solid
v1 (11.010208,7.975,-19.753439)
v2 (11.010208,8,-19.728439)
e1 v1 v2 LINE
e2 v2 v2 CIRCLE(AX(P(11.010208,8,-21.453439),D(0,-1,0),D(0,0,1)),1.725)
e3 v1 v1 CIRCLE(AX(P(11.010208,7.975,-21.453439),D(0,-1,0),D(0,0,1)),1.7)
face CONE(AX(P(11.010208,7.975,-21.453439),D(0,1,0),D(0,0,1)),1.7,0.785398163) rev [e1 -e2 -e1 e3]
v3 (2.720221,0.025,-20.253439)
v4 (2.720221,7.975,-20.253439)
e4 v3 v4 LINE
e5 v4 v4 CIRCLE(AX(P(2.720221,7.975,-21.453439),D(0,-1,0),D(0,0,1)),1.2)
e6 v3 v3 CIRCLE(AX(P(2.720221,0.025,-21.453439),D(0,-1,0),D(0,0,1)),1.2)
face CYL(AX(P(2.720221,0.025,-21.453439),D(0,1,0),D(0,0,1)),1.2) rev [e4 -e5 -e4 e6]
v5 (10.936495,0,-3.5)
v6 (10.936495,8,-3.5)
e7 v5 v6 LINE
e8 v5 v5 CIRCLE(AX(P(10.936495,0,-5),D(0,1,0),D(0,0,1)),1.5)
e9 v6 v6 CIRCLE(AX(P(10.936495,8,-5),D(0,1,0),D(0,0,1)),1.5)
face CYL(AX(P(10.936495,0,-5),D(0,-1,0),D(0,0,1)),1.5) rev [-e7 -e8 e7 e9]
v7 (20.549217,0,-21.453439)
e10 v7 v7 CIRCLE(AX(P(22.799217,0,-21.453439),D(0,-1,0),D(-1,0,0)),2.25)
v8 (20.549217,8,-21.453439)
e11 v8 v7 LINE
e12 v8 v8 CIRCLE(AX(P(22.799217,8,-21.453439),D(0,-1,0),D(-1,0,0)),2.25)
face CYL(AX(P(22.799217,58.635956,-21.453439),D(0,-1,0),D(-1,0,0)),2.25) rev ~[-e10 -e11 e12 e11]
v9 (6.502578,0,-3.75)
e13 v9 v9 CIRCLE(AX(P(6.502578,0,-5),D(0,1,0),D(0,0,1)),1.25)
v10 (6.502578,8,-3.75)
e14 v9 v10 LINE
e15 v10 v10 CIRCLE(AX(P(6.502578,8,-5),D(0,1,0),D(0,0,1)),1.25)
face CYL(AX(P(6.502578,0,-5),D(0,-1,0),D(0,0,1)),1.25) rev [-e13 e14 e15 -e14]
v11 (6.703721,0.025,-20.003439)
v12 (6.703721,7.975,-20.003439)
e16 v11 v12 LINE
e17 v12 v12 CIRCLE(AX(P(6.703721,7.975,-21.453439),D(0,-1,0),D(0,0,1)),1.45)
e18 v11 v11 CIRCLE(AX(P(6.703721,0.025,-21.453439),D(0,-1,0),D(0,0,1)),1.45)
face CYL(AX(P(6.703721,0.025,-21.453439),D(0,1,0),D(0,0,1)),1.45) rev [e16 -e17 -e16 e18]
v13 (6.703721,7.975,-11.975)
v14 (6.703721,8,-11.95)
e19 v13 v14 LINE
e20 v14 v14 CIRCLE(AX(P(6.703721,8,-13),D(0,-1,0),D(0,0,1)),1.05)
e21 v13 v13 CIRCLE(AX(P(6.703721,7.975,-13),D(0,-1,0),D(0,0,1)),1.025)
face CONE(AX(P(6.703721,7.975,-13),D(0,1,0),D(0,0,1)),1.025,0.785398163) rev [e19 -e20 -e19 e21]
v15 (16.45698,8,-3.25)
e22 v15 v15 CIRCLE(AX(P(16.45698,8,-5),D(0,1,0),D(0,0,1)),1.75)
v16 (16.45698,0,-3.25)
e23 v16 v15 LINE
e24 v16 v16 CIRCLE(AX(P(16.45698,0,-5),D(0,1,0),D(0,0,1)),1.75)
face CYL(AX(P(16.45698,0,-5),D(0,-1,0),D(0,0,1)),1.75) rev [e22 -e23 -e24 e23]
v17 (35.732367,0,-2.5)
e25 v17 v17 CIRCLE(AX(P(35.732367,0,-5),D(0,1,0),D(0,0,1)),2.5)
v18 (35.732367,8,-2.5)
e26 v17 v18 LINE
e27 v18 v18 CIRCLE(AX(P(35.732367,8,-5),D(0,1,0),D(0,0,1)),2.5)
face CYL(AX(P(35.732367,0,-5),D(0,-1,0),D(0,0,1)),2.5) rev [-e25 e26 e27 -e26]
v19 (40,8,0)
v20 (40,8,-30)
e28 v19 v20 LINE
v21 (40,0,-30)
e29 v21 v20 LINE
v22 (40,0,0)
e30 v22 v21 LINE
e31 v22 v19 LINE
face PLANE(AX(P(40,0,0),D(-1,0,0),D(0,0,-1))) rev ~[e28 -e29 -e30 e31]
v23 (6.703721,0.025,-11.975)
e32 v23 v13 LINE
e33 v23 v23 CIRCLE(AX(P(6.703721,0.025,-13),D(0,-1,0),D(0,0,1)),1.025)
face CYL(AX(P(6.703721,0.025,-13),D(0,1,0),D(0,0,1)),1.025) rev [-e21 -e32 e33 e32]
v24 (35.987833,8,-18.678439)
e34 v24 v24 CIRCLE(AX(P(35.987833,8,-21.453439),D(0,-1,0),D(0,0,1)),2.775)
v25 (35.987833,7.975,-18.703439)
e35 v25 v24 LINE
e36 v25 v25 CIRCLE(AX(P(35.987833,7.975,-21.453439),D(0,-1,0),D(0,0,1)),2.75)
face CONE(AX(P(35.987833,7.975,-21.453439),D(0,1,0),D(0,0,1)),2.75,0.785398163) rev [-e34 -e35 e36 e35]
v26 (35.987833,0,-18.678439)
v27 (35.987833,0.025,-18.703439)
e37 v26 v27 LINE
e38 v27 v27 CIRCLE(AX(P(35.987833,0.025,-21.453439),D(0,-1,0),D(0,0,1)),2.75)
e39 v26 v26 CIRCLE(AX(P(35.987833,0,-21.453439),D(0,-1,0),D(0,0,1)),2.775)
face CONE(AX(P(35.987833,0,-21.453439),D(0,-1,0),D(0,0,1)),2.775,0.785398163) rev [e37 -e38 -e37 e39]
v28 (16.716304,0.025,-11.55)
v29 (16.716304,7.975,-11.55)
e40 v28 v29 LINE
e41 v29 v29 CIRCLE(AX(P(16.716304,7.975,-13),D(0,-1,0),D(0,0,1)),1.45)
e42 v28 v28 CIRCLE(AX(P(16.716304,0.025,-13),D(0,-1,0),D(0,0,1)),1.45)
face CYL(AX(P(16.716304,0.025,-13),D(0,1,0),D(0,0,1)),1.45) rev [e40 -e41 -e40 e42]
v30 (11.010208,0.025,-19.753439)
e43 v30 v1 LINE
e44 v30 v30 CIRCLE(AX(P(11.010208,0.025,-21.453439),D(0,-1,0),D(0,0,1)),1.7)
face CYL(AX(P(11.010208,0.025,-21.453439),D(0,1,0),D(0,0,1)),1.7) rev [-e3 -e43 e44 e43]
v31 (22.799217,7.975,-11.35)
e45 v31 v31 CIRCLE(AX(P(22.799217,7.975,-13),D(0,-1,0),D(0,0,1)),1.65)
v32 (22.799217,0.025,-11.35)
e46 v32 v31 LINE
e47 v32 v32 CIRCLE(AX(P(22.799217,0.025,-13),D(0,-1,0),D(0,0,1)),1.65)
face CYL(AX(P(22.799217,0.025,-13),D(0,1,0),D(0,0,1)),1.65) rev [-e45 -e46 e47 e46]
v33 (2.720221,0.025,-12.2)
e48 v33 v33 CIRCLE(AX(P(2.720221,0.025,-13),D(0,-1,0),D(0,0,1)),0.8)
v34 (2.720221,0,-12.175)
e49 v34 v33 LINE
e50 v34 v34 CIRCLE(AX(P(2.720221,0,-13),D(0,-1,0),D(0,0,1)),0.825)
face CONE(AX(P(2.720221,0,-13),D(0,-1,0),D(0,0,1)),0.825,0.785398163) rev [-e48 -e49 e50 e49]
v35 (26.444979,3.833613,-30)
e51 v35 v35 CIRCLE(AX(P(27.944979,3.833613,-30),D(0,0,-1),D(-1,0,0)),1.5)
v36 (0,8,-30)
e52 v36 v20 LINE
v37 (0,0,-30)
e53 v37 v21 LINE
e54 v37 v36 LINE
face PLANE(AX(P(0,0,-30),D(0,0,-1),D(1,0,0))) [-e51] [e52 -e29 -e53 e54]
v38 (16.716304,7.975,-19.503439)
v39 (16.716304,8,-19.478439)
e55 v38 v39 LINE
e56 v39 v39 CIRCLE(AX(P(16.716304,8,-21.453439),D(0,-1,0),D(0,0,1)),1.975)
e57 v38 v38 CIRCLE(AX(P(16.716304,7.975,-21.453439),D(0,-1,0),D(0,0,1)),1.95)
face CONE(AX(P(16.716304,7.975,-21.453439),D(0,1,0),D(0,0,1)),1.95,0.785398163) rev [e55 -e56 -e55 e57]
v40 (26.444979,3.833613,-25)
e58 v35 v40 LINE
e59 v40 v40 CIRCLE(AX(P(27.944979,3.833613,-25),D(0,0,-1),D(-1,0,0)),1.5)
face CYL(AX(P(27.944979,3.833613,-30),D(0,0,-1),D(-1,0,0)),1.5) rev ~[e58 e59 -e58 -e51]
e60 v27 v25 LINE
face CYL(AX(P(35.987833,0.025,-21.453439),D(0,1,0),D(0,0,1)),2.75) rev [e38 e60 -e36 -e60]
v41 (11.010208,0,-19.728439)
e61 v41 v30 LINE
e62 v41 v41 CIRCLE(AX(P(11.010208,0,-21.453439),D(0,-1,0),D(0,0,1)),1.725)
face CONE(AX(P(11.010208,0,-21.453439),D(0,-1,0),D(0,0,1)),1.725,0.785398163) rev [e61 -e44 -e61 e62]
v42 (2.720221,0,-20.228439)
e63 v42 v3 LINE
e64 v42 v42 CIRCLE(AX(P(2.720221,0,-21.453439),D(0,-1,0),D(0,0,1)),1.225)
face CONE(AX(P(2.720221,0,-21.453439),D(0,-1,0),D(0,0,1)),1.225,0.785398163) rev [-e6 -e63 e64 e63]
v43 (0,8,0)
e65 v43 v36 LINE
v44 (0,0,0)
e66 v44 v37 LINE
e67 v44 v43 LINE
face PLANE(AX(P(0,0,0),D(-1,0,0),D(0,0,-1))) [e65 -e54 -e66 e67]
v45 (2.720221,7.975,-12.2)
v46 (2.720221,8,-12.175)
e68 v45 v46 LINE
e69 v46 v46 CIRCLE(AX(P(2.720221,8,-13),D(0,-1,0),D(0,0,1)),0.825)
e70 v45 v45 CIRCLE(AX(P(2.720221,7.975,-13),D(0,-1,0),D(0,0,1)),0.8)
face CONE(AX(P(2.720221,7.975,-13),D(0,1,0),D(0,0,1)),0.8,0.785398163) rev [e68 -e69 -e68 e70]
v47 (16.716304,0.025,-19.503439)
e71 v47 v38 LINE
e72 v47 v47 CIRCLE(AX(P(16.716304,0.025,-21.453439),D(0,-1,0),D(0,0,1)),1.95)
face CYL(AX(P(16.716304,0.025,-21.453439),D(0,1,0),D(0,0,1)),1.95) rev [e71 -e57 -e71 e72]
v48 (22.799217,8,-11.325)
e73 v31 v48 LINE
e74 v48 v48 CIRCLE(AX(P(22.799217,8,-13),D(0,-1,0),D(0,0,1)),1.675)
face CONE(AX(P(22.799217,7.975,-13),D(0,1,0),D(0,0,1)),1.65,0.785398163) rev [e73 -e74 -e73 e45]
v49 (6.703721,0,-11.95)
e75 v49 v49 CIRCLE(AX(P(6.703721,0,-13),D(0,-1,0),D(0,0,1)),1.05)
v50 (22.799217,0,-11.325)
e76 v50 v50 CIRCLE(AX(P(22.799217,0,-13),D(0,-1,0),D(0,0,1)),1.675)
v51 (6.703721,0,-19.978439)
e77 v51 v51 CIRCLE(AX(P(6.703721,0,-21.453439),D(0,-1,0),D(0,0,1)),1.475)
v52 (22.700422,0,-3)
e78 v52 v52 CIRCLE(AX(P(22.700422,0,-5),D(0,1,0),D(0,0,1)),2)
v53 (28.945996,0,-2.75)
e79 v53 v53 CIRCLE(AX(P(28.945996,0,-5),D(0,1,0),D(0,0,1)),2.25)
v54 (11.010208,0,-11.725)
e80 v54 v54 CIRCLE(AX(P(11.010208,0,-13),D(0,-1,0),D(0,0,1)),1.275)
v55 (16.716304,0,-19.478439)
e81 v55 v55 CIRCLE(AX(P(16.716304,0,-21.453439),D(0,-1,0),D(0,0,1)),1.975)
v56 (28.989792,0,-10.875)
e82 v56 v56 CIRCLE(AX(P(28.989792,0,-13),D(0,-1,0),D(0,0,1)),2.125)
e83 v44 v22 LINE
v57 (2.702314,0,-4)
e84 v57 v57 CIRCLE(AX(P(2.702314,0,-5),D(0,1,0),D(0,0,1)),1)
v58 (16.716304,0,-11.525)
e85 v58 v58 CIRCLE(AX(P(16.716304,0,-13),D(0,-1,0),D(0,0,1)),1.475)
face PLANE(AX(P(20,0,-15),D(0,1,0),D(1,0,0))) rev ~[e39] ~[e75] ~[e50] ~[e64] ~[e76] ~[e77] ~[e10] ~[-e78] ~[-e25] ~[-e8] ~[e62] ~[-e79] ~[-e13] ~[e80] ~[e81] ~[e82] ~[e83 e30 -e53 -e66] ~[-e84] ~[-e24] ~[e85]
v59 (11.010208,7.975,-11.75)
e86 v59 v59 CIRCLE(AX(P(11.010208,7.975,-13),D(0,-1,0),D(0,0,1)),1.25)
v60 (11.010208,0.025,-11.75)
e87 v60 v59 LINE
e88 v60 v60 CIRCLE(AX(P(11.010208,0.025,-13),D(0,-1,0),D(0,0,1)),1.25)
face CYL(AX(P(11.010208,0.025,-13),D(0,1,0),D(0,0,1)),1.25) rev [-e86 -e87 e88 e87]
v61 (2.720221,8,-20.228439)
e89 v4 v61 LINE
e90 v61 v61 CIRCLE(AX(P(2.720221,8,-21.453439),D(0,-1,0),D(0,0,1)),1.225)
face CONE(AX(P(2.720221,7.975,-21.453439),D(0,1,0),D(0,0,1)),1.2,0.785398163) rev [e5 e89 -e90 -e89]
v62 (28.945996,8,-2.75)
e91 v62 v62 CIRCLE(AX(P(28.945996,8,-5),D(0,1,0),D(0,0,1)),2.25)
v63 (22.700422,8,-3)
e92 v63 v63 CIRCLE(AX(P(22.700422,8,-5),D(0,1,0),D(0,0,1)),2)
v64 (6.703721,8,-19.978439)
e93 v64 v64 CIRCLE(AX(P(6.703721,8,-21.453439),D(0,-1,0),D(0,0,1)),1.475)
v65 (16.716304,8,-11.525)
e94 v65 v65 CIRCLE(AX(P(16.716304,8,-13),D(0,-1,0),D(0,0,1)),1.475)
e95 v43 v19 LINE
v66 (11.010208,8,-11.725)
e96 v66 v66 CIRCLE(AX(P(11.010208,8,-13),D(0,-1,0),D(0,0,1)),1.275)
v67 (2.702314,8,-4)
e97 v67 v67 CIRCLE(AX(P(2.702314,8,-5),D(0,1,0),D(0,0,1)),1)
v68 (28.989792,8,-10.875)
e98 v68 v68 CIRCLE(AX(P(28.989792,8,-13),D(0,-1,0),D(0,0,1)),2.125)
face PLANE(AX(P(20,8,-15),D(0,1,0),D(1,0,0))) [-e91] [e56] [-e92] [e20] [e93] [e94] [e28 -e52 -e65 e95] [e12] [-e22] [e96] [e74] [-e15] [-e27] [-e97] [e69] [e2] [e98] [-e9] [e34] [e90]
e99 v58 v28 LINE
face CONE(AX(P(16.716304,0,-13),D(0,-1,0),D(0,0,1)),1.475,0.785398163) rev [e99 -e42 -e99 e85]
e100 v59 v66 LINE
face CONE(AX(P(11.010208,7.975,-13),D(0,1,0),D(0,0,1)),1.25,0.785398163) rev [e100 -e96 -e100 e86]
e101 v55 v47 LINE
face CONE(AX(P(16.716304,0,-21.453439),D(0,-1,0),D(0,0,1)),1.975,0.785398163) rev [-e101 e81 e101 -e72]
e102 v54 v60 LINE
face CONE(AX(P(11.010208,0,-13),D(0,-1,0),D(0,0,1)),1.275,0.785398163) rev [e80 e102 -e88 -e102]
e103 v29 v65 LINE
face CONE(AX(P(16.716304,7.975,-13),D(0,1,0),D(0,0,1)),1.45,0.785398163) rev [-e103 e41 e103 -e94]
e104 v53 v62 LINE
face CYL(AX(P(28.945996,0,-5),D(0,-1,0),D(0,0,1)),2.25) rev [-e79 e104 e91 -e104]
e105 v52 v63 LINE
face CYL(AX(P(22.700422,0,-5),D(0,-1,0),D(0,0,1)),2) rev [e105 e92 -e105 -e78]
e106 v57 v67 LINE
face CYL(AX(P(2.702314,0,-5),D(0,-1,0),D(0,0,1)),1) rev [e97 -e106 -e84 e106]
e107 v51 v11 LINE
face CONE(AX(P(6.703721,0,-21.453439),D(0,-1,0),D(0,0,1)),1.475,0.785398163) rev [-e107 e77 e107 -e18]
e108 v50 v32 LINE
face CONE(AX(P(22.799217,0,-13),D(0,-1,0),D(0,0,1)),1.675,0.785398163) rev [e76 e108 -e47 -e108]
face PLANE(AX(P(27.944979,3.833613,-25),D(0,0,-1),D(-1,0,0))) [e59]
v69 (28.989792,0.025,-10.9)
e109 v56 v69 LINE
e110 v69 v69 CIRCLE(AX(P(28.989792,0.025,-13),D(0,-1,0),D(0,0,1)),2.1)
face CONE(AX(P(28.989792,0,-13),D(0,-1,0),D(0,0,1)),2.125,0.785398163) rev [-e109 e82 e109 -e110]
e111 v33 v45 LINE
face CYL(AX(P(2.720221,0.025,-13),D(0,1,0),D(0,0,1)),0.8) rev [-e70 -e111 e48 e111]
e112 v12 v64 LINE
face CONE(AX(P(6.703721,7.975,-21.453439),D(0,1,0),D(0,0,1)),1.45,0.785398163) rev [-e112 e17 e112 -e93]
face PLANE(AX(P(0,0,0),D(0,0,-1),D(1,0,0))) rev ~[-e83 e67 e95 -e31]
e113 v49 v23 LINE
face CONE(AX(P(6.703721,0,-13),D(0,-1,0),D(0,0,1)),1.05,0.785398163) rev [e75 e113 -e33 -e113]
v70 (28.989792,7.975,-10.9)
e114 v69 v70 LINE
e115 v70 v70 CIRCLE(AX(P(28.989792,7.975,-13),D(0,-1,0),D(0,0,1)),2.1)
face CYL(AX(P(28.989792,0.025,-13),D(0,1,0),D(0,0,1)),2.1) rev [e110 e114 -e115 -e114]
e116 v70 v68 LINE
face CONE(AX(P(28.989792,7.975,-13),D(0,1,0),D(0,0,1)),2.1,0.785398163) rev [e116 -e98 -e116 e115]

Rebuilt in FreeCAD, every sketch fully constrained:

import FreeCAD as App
import Part
import Sketcher

V = App.Vector

doc = App.newDocument("Part")
body = doc.addObject("PartDesign::Body", "Body")

# Sketch on XZ plane
sketch1 = doc.addObject("Sketcher::SketchObject", "Sketch")
body.addObject(sketch1)
sketch1.AttachmentSupport = (doc.XZ_Plane, [""])
sketch1.MapMode = "FlatFace"
sketch1.addGeometry([
    Part.LineSegment(V(0, -30, 0), V(0, 0, 0)),  # 0
    Part.LineSegment(V(0, 0, 0), V(40, 0, 0)),  # 1
    Part.LineSegment(V(40, 0, 0), V(40, -30, 0)),  # 2
    Part.LineSegment(V(40, -30, 0), V(0, -30, 0)),  # 3
    Part.Circle(V(2.7, -5, 0), V(0, 0, 1), 1),  # 4
    Part.Circle(V(6.5, -5, 0), V(0, 0, 1), 1.2),  # 5
    Part.Circle(V(10.9, -5, 0), V(0, 0, 1), 1.5),  # 6
    Part.Circle(V(16.5, -5, 0), V(0, 0, 1), 1.8),  # 7
    Part.Circle(V(22.7, -5, 0), V(0, 0, 1), 2),  # 8
    Part.Circle(V(28.9, -5, 0), V(0, 0, 1), 2.2),  # 9
    Part.Circle(V(35.7, -5, 0), V(0, 0, 1), 2.5),  # 10
], False)
sketch1.addConstraint([
    Sketcher.Constraint("Coincident", 0, 2, 1, 1),
    Sketcher.Constraint("Coincident", 1, 2, 2, 1),
    Sketcher.Constraint("Coincident", 2, 2, 3, 1),
    Sketcher.Constraint("Coincident", 3, 2, 0, 1),
    Sketcher.Constraint("Vertical", 0),
    Sketcher.Constraint("Horizontal", 1),
    Sketcher.Constraint("Vertical", 2),
    Sketcher.Constraint("Horizontal", 3),
    Sketcher.Constraint("Coincident", 0, 2, -1, 1),
    Sketcher.Constraint("Horizontal", 4, 3, 5, 3),
    Sketcher.Constraint("Horizontal", 5, 3, 6, 3),
    Sketcher.Constraint("Horizontal", 6, 3, 7, 3),
    Sketcher.Constraint("Horizontal", 7, 3, 8, 3),
    Sketcher.Constraint("Horizontal", 8, 3, 9, 3),
    Sketcher.Constraint("Horizontal", 9, 3, 10, 3),
    Sketcher.Constraint("Diameter", 4, 2.0),
    Sketcher.Constraint("Diameter", 6, 3.0),
    Sketcher.Constraint("Diameter", 8, 4.0),
    Sketcher.Constraint("Diameter", 10, 5.0),
    Sketcher.Constraint("Diameter", 5, 2.5),
    Sketcher.Constraint("Diameter", 7, 3.5),
    Sketcher.Constraint("Diameter", 9, 4.5),
    Sketcher.Constraint("DistanceX", 1, 1, 1, 2, 40.0),
    Sketcher.Constraint("DistanceY", 0, 1, 0, 2, 30.0),
    Sketcher.Constraint("DistanceY", 4, 3, -1, 1, 5.0),
    Sketcher.Constraint("DistanceX", 5, 3, 7, 3, 9.954402),
    Sketcher.Constraint("DistanceX", 6, 3, 9, 3, 18.009501),
    Sketcher.Constraint("DistanceX", -1, 1, 7, 3, 16.45698),
    Sketcher.Constraint("DistanceX", 4, 3, 6, 3, 8.234181),
    Sketcher.Constraint("DistanceX", 4, 3, 8, 3, 19.998108),
    Sketcher.Constraint("DistanceX", 9, 3, 10, 3, 6.786371),
    Sketcher.Constraint("DistanceX", 5, 3, 10, 3, 29.229789),
])
pad1 = doc.addObject("PartDesign::Pad", "Pad")
body.addObject(pad1)
pad1.Profile = sketch1
pad1.Length = 8
pad1.Reversed = True

# Sketch on YZ plane
sketch2 = doc.addObject("Sketcher::SketchObject", "Sketch001")
body.addObject(sketch2)
sketch2.AttachmentSupport = (doc.YZ_Plane, [""])
sketch2.MapMode = "FlatFace"
sketch2.AttachmentOffset = App.Placement(V(0, 0, 2.720221), App.Rotation())
sketch2.addGeometry([
    Part.LineSegment(V(0, -13, 0), V(8, -13, 0)),  # 0
    Part.LineSegment(V(8, -13, 0), V(8, -12.175, 0)),  # 1
    Part.LineSegment(V(8, -12.175, 0), V(7.975, -12.2, 0)),  # 2
    Part.LineSegment(V(7.975, -12.2, 0), V(0.025, -12.2, 0)),  # 3
    Part.LineSegment(V(0.025, -12.2, 0), V(0, -12.175, 0)),  # 4
    Part.LineSegment(V(0, -12.175, 0), V(0, -13, 0)),  # 5
], False)
sketch2.addGeometry(Part.LineSegment(V(8, -13, 0), V(0, -13, 0)), True)  # axis
sketch2.addConstraint([
    Sketcher.Constraint("Coincident", 0, 2, 1, 1),
    Sketcher.Constraint("Coincident", 1, 2, 2, 1),
    Sketcher.Constraint("Coincident", 2, 2, 3, 1),
    Sketcher.Constraint("Coincident", 3, 2, 4, 1),
    Sketcher.Constraint("Coincident", 4, 2, 5, 1),
    Sketcher.Constraint("Coincident", 5, 2, 0, 1),
    Sketcher.Constraint("Horizontal", 0),
    Sketcher.Constraint("Vertical", 1),
    Sketcher.Constraint("Horizontal", 3),
    Sketcher.Constraint("Vertical", 5),
    Sketcher.Constraint("Horizontal", 6),
    Sketcher.Constraint("Coincident", 6, 1, 0, 2),
    Sketcher.Constraint("PointOnObject", 4, 2, -2),
    Sketcher.Constraint("PointOnObject", 6, 2, -2),
    Sketcher.Constraint("Perpendicular", 2, 4),
    Sketcher.Constraint("Horizontal", 1, 2, 4, 2),
    Sketcher.Constraint("Equal", 2, 4),
    Sketcher.Constraint("DistanceX", 0, 1, 0, 2, 8.0),
    Sketcher.Constraint("DistanceY", 0, 2, -1, 1, 13.0),
    Sketcher.Constraint("DistanceX", 3, 2, 3, 1, 7.95),
    Sketcher.Constraint("DistanceY", 2, 2, -1, 1, 12.2),
])
groove = doc.addObject("PartDesign::Groove", "Groove")
body.addObject(groove)
groove.Profile = sketch2
groove.ReferenceAxis = (sketch2, ["Axis0"])
groove.Angle = 360

# Sketch on YZ plane
sketch3 = doc.addObject("Sketcher::SketchObject", "Sketch002")
body.addObject(sketch3)
sketch3.AttachmentSupport = (doc.YZ_Plane, [""])
sketch3.MapMode = "FlatFace"
sketch3.AttachmentOffset = App.Placement(V(0, 0, 6.703721), App.Rotation())
sketch3.addGeometry([
    Part.LineSegment(V(0, -13, 0), V(8, -13, 0)),  # 0
    Part.LineSegment(V(8, -13, 0), V(8, -11.95, 0)),  # 1
    Part.LineSegment(V(8, -11.95, 0), V(7.975, -11.975, 0)),  # 2
    Part.LineSegment(V(7.975, -11.975, 0), V(0.025, -11.975, 0)),  # 3
    Part.LineSegment(V(0.025, -11.975, 0), V(0, -11.95, 0)),  # 4
    Part.LineSegment(V(0, -11.95, 0), V(0, -13, 0)),  # 5
], False)
sketch3.addGeometry(Part.LineSegment(V(8, -13, 0), V(0, -13, 0)), True)  # axis
sketch3.addConstraint([
    Sketcher.Constraint("Coincident", 0, 2, 1, 1),
    Sketcher.Constraint("Coincident", 1, 2, 2, 1),
    Sketcher.Constraint("Coincident", 2, 2, 3, 1),
    Sketcher.Constraint("Coincident", 3, 2, 4, 1),
    Sketcher.Constraint("Coincident", 4, 2, 5, 1),
    Sketcher.Constraint("Coincident", 5, 2, 0, 1),
    Sketcher.Constraint("Horizontal", 0),
    Sketcher.Constraint("Vertical", 1),
    Sketcher.Constraint("Horizontal", 3),
    Sketcher.Constraint("Vertical", 5),
    Sketcher.Constraint("Horizontal", 6),
    Sketcher.Constraint("Coincident", 6, 1, 0, 2),
    Sketcher.Constraint("PointOnObject", 4, 2, -2),
    Sketcher.Constraint("PointOnObject", 6, 2, -2),
    Sketcher.Constraint("Perpendicular", 2, 4),
    Sketcher.Constraint("Horizontal", 1, 2, 4, 2),
    Sketcher.Constraint("Equal", 2, 4),
    Sketcher.Constraint("DistanceX", 0, 1, 0, 2, 8.0),
    Sketcher.Constraint("DistanceY", 0, 2, -1, 1, 13.0),
    Sketcher.Constraint("DistanceX", 3, 2, 3, 1, 7.95),
    Sketcher.Constraint("DistanceY", 1, 1, 1, 2, 1.05),
])
groove2 = doc.addObject("PartDesign::Groove", "Groove001")
body.addObject(groove2)
groove2.Profile = sketch3
groove2.ReferenceAxis = (sketch3, ["Axis0"])
groove2.Angle = 360

# Sketch on YZ plane
sketch4 = doc.addObject("Sketcher::SketchObject", "Sketch003")
body.addObject(sketch4)
sketch4.AttachmentSupport = (doc.YZ_Plane, [""])
sketch4.MapMode = "FlatFace"
sketch4.AttachmentOffset = App.Placement(V(0, 0, 11.010208), App.Rotation())
sketch4.addGeometry([
    Part.LineSegment(V(0, -13, 0), V(8, -13, 0)),  # 0
    Part.LineSegment(V(8, -13, 0), V(8, -11.725, 0)),  # 1
    Part.LineSegment(V(8, -11.725, 0), V(7.975, -11.75, 0)),  # 2
    Part.LineSegment(V(7.975, -11.75, 0), V(0.025, -11.75, 0)),  # 3
    Part.LineSegment(V(0.025, -11.75, 0), V(0, -11.725, 0)),  # 4
    Part.LineSegment(V(0, -11.725, 0), V(0, -13, 0)),  # 5
], False)
sketch4.addGeometry(Part.LineSegment(V(8, -13, 0), V(0, -13, 0)), True)  # axis
sketch4.addConstraint([
    Sketcher.Constraint("Coincident", 0, 2, 1, 1),
    Sketcher.Constraint("Coincident", 1, 2, 2, 1),
    Sketcher.Constraint("Coincident", 2, 2, 3, 1),
    Sketcher.Constraint("Coincident", 3, 2, 4, 1),
    Sketcher.Constraint("Coincident", 4, 2, 5, 1),
    Sketcher.Constraint("Coincident", 5, 2, 0, 1),
    Sketcher.Constraint("Horizontal", 0),
    Sketcher.Constraint("Vertical", 1),
    Sketcher.Constraint("Horizontal", 3),
    Sketcher.Constraint("Vertical", 5),
    Sketcher.Constraint("Horizontal", 6),
    Sketcher.Constraint("Coincident", 6, 1, 0, 2),
    Sketcher.Constraint("PointOnObject", 4, 2, -2),
    Sketcher.Constraint("PointOnObject", 6, 2, -2),
    Sketcher.Constraint("Perpendicular", 2, 4),
    Sketcher.Constraint("Horizontal", 1, 2, 4, 2),
    Sketcher.Constraint("Equal", 2, 4),
    Sketcher.Constraint("DistanceX", 0, 1, 0, 2, 8.0),
    Sketcher.Constraint("DistanceY", 0, 2, -1, 1, 13.0),
    Sketcher.Constraint("DistanceX", 3, 2, 3, 1, 7.95),
    Sketcher.Constraint("DistanceY", 1, 1, 1, 2, 1.275),
])
groove3 = doc.addObject("PartDesign::Groove", "Groove002")
body.addObject(groove3)
groove3.Profile = sketch4
groove3.ReferenceAxis = (sketch4, ["Axis0"])
groove3.Angle = 360

# Sketch on YZ plane
sketch5 = doc.addObject("Sketcher::SketchObject", "Sketch004")
body.addObject(sketch5)
sketch5.AttachmentSupport = (doc.YZ_Plane, [""])
sketch5.MapMode = "FlatFace"
sketch5.AttachmentOffset = App.Placement(V(0, 0, 16.716304), App.Rotation())
sketch5.addGeometry([
    Part.LineSegment(V(0, -13, 0), V(8, -13, 0)),  # 0
    Part.LineSegment(V(8, -13, 0), V(8, -11.525, 0)),  # 1
    Part.LineSegment(V(8, -11.525, 0), V(7.975, -11.55, 0)),  # 2
    Part.LineSegment(V(7.975, -11.55, 0), V(0.025, -11.55, 0)),  # 3
    Part.LineSegment(V(0.025, -11.55, 0), V(0, -11.525, 0)),  # 4
    Part.LineSegment(V(0, -11.525, 0), V(0, -13, 0)),  # 5
], False)
sketch5.addGeometry(Part.LineSegment(V(8, -13, 0), V(0, -13, 0)), True)  # axis
sketch5.addConstraint([
    Sketcher.Constraint("Coincident", 0, 2, 1, 1),
    Sketcher.Constraint("Coincident", 1, 2, 2, 1),
    Sketcher.Constraint("Coincident", 2, 2, 3, 1),
    Sketcher.Constraint("Coincident", 3, 2, 4, 1),
    Sketcher.Constraint("Coincident", 4, 2, 5, 1),
    Sketcher.Constraint("Coincident", 5, 2, 0, 1),
    Sketcher.Constraint("Horizontal", 0),
    Sketcher.Constraint("Vertical", 1),
    Sketcher.Constraint("Horizontal", 3),
    Sketcher.Constraint("Vertical", 5),
    Sketcher.Constraint("Horizontal", 6),
    Sketcher.Constraint("Coincident", 6, 1, 0, 2),
    Sketcher.Constraint("PointOnObject", 4, 2, -2),
    Sketcher.Constraint("PointOnObject", 6, 2, -2),
    Sketcher.Constraint("Perpendicular", 2, 4),
    Sketcher.Constraint("Horizontal", 1, 2, 4, 2),
    Sketcher.Constraint("Equal", 2, 4),
    Sketcher.Constraint("DistanceX", 0, 1, 0, 2, 8.0),
    Sketcher.Constraint("DistanceY", 0, 2, -1, 1, 13.0),
    Sketcher.Constraint("DistanceX", 3, 2, 3, 1, 7.95),
    Sketcher.Constraint("DistanceY", 1, 1, 1, 2, 1.475),
])
groove4 = doc.addObject("PartDesign::Groove", "Groove003")
body.addObject(groove4)
groove4.Profile = sketch5
groove4.ReferenceAxis = (sketch5, ["Axis0"])
groove4.Angle = 360

# Sketch on YZ plane
sketch6 = doc.addObject("Sketcher::SketchObject", "Sketch005")
body.addObject(sketch6)
sketch6.AttachmentSupport = (doc.YZ_Plane, [""])
sketch6.MapMode = "FlatFace"
sketch6.AttachmentOffset = App.Placement(V(0, 0, 22.799217), App.Rotation())
sketch6.addGeometry([
    Part.LineSegment(V(0, -13, 0), V(8, -13, 0)),  # 0
    Part.LineSegment(V(8, -13, 0), V(8, -11.325, 0)),  # 1
    Part.LineSegment(V(8, -11.325, 0), V(7.975, -11.35, 0)),  # 2
    Part.LineSegment(V(7.975, -11.35, 0), V(0.025, -11.35, 0)),  # 3
    Part.LineSegment(V(0.025, -11.35, 0), V(0, -11.325, 0)),  # 4
    Part.LineSegment(V(0, -11.325, 0), V(0, -13, 0)),  # 5
], False)
sketch6.addGeometry(Part.LineSegment(V(8, -13, 0), V(0, -13, 0)), True)  # axis
sketch6.addConstraint([
    Sketcher.Constraint("Coincident", 0, 2, 1, 1),
    Sketcher.Constraint("Coincident", 1, 2, 2, 1),
    Sketcher.Constraint("Coincident", 2, 2, 3, 1),
    Sketcher.Constraint("Coincident", 3, 2, 4, 1),
    Sketcher.Constraint("Coincident", 4, 2, 5, 1),
    Sketcher.Constraint("Coincident", 5, 2, 0, 1),
    Sketcher.Constraint("Horizontal", 0),
    Sketcher.Constraint("Vertical", 1),
    Sketcher.Constraint("Horizontal", 3),
    Sketcher.Constraint("Vertical", 5),
    Sketcher.Constraint("Horizontal", 6),
    Sketcher.Constraint("Coincident", 6, 1, 0, 2),
    Sketcher.Constraint("PointOnObject", 4, 2, -2),
    Sketcher.Constraint("PointOnObject", 6, 2, -2),
    Sketcher.Constraint("Perpendicular", 2, 4),
    Sketcher.Constraint("Horizontal", 1, 2, 4, 2),
    Sketcher.Constraint("Equal", 2, 4),
    Sketcher.Constraint("DistanceX", 0, 1, 0, 2, 8.0),
    Sketcher.Constraint("DistanceY", 0, 2, -1, 1, 13.0),
    Sketcher.Constraint("DistanceX", 3, 2, 3, 1, 7.95),
    Sketcher.Constraint("DistanceY", 1, 1, 1, 2, 1.675),
])
groove5 = doc.addObject("PartDesign::Groove", "Groove004")
body.addObject(groove5)
groove5.Profile = sketch6
groove5.ReferenceAxis = (sketch6, ["Axis0"])
groove5.Angle = 360

# Sketch on YZ plane
sketch7 = doc.addObject("Sketcher::SketchObject", "Sketch006")
body.addObject(sketch7)
sketch7.AttachmentSupport = (doc.YZ_Plane, [""])
sketch7.MapMode = "FlatFace"
sketch7.AttachmentOffset = App.Placement(V(0, 0, 28.989792), App.Rotation())
sketch7.addGeometry([
    Part.LineSegment(V(0, -13, 0), V(8, -13, 0)),  # 0
    Part.LineSegment(V(8, -13, 0), V(8, -10.875, 0)),  # 1
    Part.LineSegment(V(8, -10.875, 0), V(7.975, -10.9, 0)),  # 2
    Part.LineSegment(V(7.975, -10.9, 0), V(0.025, -10.9, 0)),  # 3
    Part.LineSegment(V(0.025, -10.9, 0), V(0, -10.875, 0)),  # 4
    Part.LineSegment(V(0, -10.875, 0), V(0, -13, 0)),  # 5
], False)
sketch7.addGeometry(Part.LineSegment(V(8, -13, 0), V(0, -13, 0)), True)  # axis
sketch7.addConstraint([
    Sketcher.Constraint("Coincident", 0, 2, 1, 1),
    Sketcher.Constraint("Coincident", 1, 2, 2, 1),
    Sketcher.Constraint("Coincident", 2, 2, 3, 1),
    Sketcher.Constraint("Coincident", 3, 2, 4, 1),
    Sketcher.Constraint("Coincident", 4, 2, 5, 1),
    Sketcher.Constraint("Coincident", 5, 2, 0, 1),
    Sketcher.Constraint("Horizontal", 0),
    Sketcher.Constraint("Vertical", 1),
    Sketcher.Constraint("Horizontal", 3),
    Sketcher.Constraint("Vertical", 5),
    Sketcher.Constraint("Horizontal", 6),
    Sketcher.Constraint("Coincident", 6, 1, 0, 2),
    Sketcher.Constraint("PointOnObject", 4, 2, -2),
    Sketcher.Constraint("PointOnObject", 6, 2, -2),
    Sketcher.Constraint("Perpendicular", 2, 4),
    Sketcher.Constraint("Horizontal", 1, 2, 4, 2),
    Sketcher.Constraint("Equal", 2, 4),
    Sketcher.Constraint("DistanceX", 0, 1, 0, 2, 8.0),
    Sketcher.Constraint("DistanceY", 0, 2, -1, 1, 13.0),
    Sketcher.Constraint("DistanceX", 3, 2, 3, 1, 7.95),
    Sketcher.Constraint("DistanceY", 2, 2, -1, 1, 10.9),
])
groove6 = doc.addObject("PartDesign::Groove", "Groove005")
body.addObject(groove6)
groove6.Profile = sketch7
groove6.ReferenceAxis = (sketch7, ["Axis0"])
groove6.Angle = 360

# Sketch on YZ plane
sketch8 = doc.addObject("Sketcher::SketchObject", "Sketch007")
body.addObject(sketch8)
sketch8.AttachmentSupport = (doc.YZ_Plane, [""])
sketch8.MapMode = "FlatFace"
sketch8.AttachmentOffset = App.Placement(V(0, 0, 2.720221), App.Rotation())
sketch8.addGeometry([
    Part.LineSegment(V(0, -21.453, 0), V(8, -21.453, 0)),  # 0
    Part.LineSegment(V(8, -21.453, 0), V(8, -20.228, 0)),  # 1
    Part.LineSegment(V(8, -20.228, 0), V(7.975, -20.253, 0)),  # 2
    Part.LineSegment(V(7.975, -20.253, 0), V(0.025, -20.253, 0)),  # 3
    Part.LineSegment(V(0.025, -20.253, 0), V(0, -20.228, 0)),  # 4
    Part.LineSegment(V(0, -20.228, 0), V(0, -21.453, 0)),  # 5
], False)
sketch8.addGeometry(Part.LineSegment(V(8, -21.453, 0), V(0, -21.453, 0)), True)  # axis
sketch8.addConstraint([
    Sketcher.Constraint("Coincident", 0, 2, 1, 1),
    Sketcher.Constraint("Coincident", 1, 2, 2, 1),
    Sketcher.Constraint("Coincident", 2, 2, 3, 1),
    Sketcher.Constraint("Coincident", 3, 2, 4, 1),
    Sketcher.Constraint("Coincident", 4, 2, 5, 1),
    Sketcher.Constraint("Coincident", 5, 2, 0, 1),
    Sketcher.Constraint("Horizontal", 0),
    Sketcher.Constraint("Vertical", 1),
    Sketcher.Constraint("Horizontal", 3),
    Sketcher.Constraint("Vertical", 5),
    Sketcher.Constraint("Horizontal", 6),
    Sketcher.Constraint("Coincident", 6, 1, 0, 2),
    Sketcher.Constraint("PointOnObject", 4, 2, -2),
    Sketcher.Constraint("PointOnObject", 6, 2, -2),
    Sketcher.Constraint("Perpendicular", 2, 4),
    Sketcher.Constraint("Horizontal", 1, 2, 4, 2),
    Sketcher.Constraint("Equal", 2, 4),
    Sketcher.Constraint("DistanceX", 0, 1, 0, 2, 8.0),
    Sketcher.Constraint("DistanceX", 3, 2, 3, 1, 7.95),
    Sketcher.Constraint("DistanceY", 0, 2, 2, 2, 1.2),
    Sketcher.Constraint("DistanceY", 0, 2, -1, 1, 21.453439),
])
groove7 = doc.addObject("PartDesign::Groove", "Groove006")
body.addObject(groove7)
groove7.Profile = sketch8
groove7.ReferenceAxis = (sketch8, ["Axis0"])
groove7.Angle = 360

# Sketch on YZ plane
sketch9 = doc.addObject("Sketcher::SketchObject", "Sketch008")
body.addObject(sketch9)
sketch9.AttachmentSupport = (doc.YZ_Plane, [""])
sketch9.MapMode = "FlatFace"
sketch9.AttachmentOffset = App.Placement(V(0, 0, 6.703721), App.Rotation())
sketch9.addGeometry([
    Part.LineSegment(V(0, -21.453, 0), V(8, -21.453, 0)),  # 0
    Part.LineSegment(V(8, -21.453, 0), V(8, -19.978, 0)),  # 1
    Part.LineSegment(V(8, -19.978, 0), V(7.975, -20.003, 0)),  # 2
    Part.LineSegment(V(7.975, -20.003, 0), V(0.025, -20.003, 0)),  # 3
    Part.LineSegment(V(0.025, -20.003, 0), V(0, -19.978, 0)),  # 4
    Part.LineSegment(V(0, -19.978, 0), V(0, -21.453, 0)),  # 5
], False)
sketch9.addGeometry(Part.LineSegment(V(8, -21.453, 0), V(0, -21.453, 0)), True)  # axis
sketch9.addConstraint([
    Sketcher.Constraint("Coincident", 0, 2, 1, 1),
    Sketcher.Constraint("Coincident", 1, 2, 2, 1),
    Sketcher.Constraint("Coincident", 2, 2, 3, 1),
    Sketcher.Constraint("Coincident", 3, 2, 4, 1),
    Sketcher.Constraint("Coincident", 4, 2, 5, 1),
    Sketcher.Constraint("Coincident", 5, 2, 0, 1),
    Sketcher.Constraint("Horizontal", 0),
    Sketcher.Constraint("Vertical", 1),
    Sketcher.Constraint("Horizontal", 3),
    Sketcher.Constraint("Vertical", 5),
    Sketcher.Constraint("Horizontal", 6),
    Sketcher.Constraint("Coincident", 6, 1, 0, 2),
    Sketcher.Constraint("PointOnObject", 4, 2, -2),
    Sketcher.Constraint("PointOnObject", 6, 2, -2),
    Sketcher.Constraint("Perpendicular", 2, 4),
    Sketcher.Constraint("Horizontal", 1, 2, 4, 2),
    Sketcher.Constraint("Equal", 2, 4),
    Sketcher.Constraint("DistanceX", 0, 1, 0, 2, 8.0),
    Sketcher.Constraint("DistanceX", 3, 2, 3, 1, 7.95),
    Sketcher.Constraint("DistanceY", 1, 1, 1, 2, 1.475),
    Sketcher.Constraint("DistanceY", 0, 2, -1, 1, 21.453439),
])
groove8 = doc.addObject("PartDesign::Groove", "Groove007")
body.addObject(groove8)
groove8.Profile = sketch9
groove8.ReferenceAxis = (sketch9, ["Axis0"])
groove8.Angle = 360

# Sketch on YZ plane
sketch10 = doc.addObject("Sketcher::SketchObject", "Sketch009")
body.addObject(sketch10)
sketch10.AttachmentSupport = (doc.YZ_Plane, [""])
sketch10.MapMode = "FlatFace"
sketch10.AttachmentOffset = App.Placement(V(0, 0, 11.010208), App.Rotation())
sketch10.addGeometry([
    Part.LineSegment(V(0, -21.453, 0), V(8, -21.453, 0)),  # 0
    Part.LineSegment(V(8, -21.453, 0), V(8, -19.728, 0)),  # 1
    Part.LineSegment(V(8, -19.728, 0), V(7.975, -19.753, 0)),  # 2
    Part.LineSegment(V(7.975, -19.753, 0), V(0.025, -19.753, 0)),  # 3
    Part.LineSegment(V(0.025, -19.753, 0), V(0, -19.728, 0)),  # 4
    Part.LineSegment(V(0, -19.728, 0), V(0, -21.453, 0)),  # 5
], False)
sketch10.addGeometry(Part.LineSegment(V(8, -21.453, 0), V(0, -21.453, 0)), True)  # axis
sketch10.addConstraint([
    Sketcher.Constraint("Coincident", 0, 2, 1, 1),
    Sketcher.Constraint("Coincident", 1, 2, 2, 1),
    Sketcher.Constraint("Coincident", 2, 2, 3, 1),
    Sketcher.Constraint("Coincident", 3, 2, 4, 1),
    Sketcher.Constraint("Coincident", 4, 2, 5, 1),
    Sketcher.Constraint("Coincident", 5, 2, 0, 1),
    Sketcher.Constraint("Horizontal", 0),
    Sketcher.Constraint("Vertical", 1),
    Sketcher.Constraint("Horizontal", 3),
    Sketcher.Constraint("Vertical", 5),
    Sketcher.Constraint("Horizontal", 6),
    Sketcher.Constraint("Coincident", 6, 1, 0, 2),
    Sketcher.Constraint("PointOnObject", 4, 2, -2),
    Sketcher.Constraint("PointOnObject", 6, 2, -2),
    Sketcher.Constraint("Perpendicular", 2, 4),
    Sketcher.Constraint("Horizontal", 1, 2, 4, 2),
    Sketcher.Constraint("Equal", 2, 4),
    Sketcher.Constraint("DistanceX", 0, 1, 0, 2, 8.0),
    Sketcher.Constraint("DistanceX", 3, 2, 3, 1, 7.95),
    Sketcher.Constraint("DistanceY", 0, 2, 2, 2, 1.7),
    Sketcher.Constraint("DistanceY", 0, 2, -1, 1, 21.453439),
])
groove9 = doc.addObject("PartDesign::Groove", "Groove008")
body.addObject(groove9)
groove9.Profile = sketch10
groove9.ReferenceAxis = (sketch10, ["Axis0"])
groove9.Angle = 360

# Sketch on YZ plane
sketch11 = doc.addObject("Sketcher::SketchObject", "Sketch010")
body.addObject(sketch11)
sketch11.AttachmentSupport = (doc.YZ_Plane, [""])
sketch11.MapMode = "FlatFace"
sketch11.AttachmentOffset = App.Placement(V(0, 0, 16.716304), App.Rotation())
sketch11.addGeometry([
    Part.LineSegment(V(0, -21.453, 0), V(8, -21.453, 0)),  # 0
    Part.LineSegment(V(8, -21.453, 0), V(8, -19.478, 0)),  # 1
    Part.LineSegment(V(8, -19.478, 0), V(7.975, -19.503, 0)),  # 2
    Part.LineSegment(V(7.975, -19.503, 0), V(0.025, -19.503, 0)),  # 3
    Part.LineSegment(V(0.025, -19.503, 0), V(0, -19.478, 0)),  # 4
    Part.LineSegment(V(0, -19.478, 0), V(0, -21.453, 0)),  # 5
], False)
sketch11.addGeometry(Part.LineSegment(V(8, -21.453, 0), V(0, -21.453, 0)), True)  # axis
sketch11.addConstraint([
    Sketcher.Constraint("Coincident", 0, 2, 1, 1),
    Sketcher.Constraint("Coincident", 1, 2, 2, 1),
    Sketcher.Constraint("Coincident", 2, 2, 3, 1),
    Sketcher.Constraint("Coincident", 3, 2, 4, 1),
    Sketcher.Constraint("Coincident", 4, 2, 5, 1),
    Sketcher.Constraint("Coincident", 5, 2, 0, 1),
    Sketcher.Constraint("Horizontal", 0),
    Sketcher.Constraint("Vertical", 1),
    Sketcher.Constraint("Horizontal", 3),
    Sketcher.Constraint("Vertical", 5),
    Sketcher.Constraint("Horizontal", 6),
    Sketcher.Constraint("Coincident", 6, 1, 0, 2),
    Sketcher.Constraint("PointOnObject", 4, 2, -2),
    Sketcher.Constraint("PointOnObject", 6, 2, -2),
    Sketcher.Constraint("Perpendicular", 2, 4),
    Sketcher.Constraint("Horizontal", 1, 2, 4, 2),
    Sketcher.Constraint("Equal", 2, 4),
    Sketcher.Constraint("DistanceX", 0, 1, 0, 2, 8.0),
    Sketcher.Constraint("DistanceX", 3, 2, 3, 1, 7.95),
    Sketcher.Constraint("DistanceY", 1, 1, 1, 2, 1.975),
    Sketcher.Constraint("DistanceY", 0, 2, -1, 1, 21.453439),
])
groove10 = doc.addObject("PartDesign::Groove", "Groove009")
body.addObject(groove10)
groove10.Profile = sketch11
groove10.ReferenceAxis = (sketch11, ["Axis0"])
groove10.Angle = 360

# Sketch on XZ plane
sketch12 = doc.addObject("Sketcher::SketchObject", "Sketch011")
body.addObject(sketch12)
sketch12.AttachmentSupport = (doc.XZ_Plane, [""])
sketch12.MapMode = "FlatFace"
sketch12.AttachmentOffset = App.Placement(V(0, 0, -8), App.Rotation())
sketch12.addGeometry(Part.Circle(V(22.8, -21.5, 0), V(0, 0, 1), 2.2), False)
sketch12.addConstraint([
    Sketcher.Constraint("Diameter", 0, 4.5),
    Sketcher.Constraint("DistanceY", 0, 3, -1, 1, 21.453439),
    Sketcher.Constraint("DistanceX", -1, 1, 0, 3, 22.799217),
])
doc.recompute()
hole = doc.addObject("PartDesign::Hole", "Hole")
body.addObject(hole)
hole.Profile = sketch12
hole.ThreadType = "None"
hole.Diameter = 4.5
hole.DepthType = "ThroughAll"
hole.Reversed = True

# Sketch on YZ plane
sketch13 = doc.addObject("Sketcher::SketchObject", "Sketch012")
body.addObject(sketch13)
sketch13.AttachmentSupport = (doc.YZ_Plane, [""])
sketch13.MapMode = "FlatFace"
sketch13.AttachmentOffset = App.Placement(V(0, 0, 35.987833), App.Rotation())
sketch13.addGeometry([
    Part.LineSegment(V(0, -21.453, 0), V(8, -21.453, 0)),  # 0
    Part.LineSegment(V(8, -21.453, 0), V(8, -18.678, 0)),  # 1
    Part.LineSegment(V(8, -18.678, 0), V(7.975, -18.703, 0)),  # 2
    Part.LineSegment(V(7.975, -18.703, 0), V(0.025, -18.703, 0)),  # 3
    Part.LineSegment(V(0.025, -18.703, 0), V(0, -18.678, 0)),  # 4
    Part.LineSegment(V(0, -18.678, 0), V(0, -21.453, 0)),  # 5
], False)
sketch13.addGeometry(Part.LineSegment(V(8, -21.453, 0), V(0, -21.453, 0)), True)  # axis
sketch13.addConstraint([
    Sketcher.Constraint("Coincident", 0, 2, 1, 1),
    Sketcher.Constraint("Coincident", 1, 2, 2, 1),
    Sketcher.Constraint("Coincident", 2, 2, 3, 1),
    Sketcher.Constraint("Coincident", 3, 2, 4, 1),
    Sketcher.Constraint("Coincident", 4, 2, 5, 1),
    Sketcher.Constraint("Coincident", 5, 2, 0, 1),
    Sketcher.Constraint("Horizontal", 0),
    Sketcher.Constraint("Vertical", 1),
    Sketcher.Constraint("Horizontal", 3),
    Sketcher.Constraint("Vertical", 5),
    Sketcher.Constraint("Horizontal", 6),
    Sketcher.Constraint("Coincident", 6, 1, 0, 2),
    Sketcher.Constraint("PointOnObject", 4, 2, -2),
    Sketcher.Constraint("PointOnObject", 6, 2, -2),
    Sketcher.Constraint("Perpendicular", 2, 4),
    Sketcher.Constraint("Horizontal", 1, 2, 4, 2),
    Sketcher.Constraint("Equal", 2, 4),
    Sketcher.Constraint("DistanceX", 0, 1, 0, 2, 8.0),
    Sketcher.Constraint("DistanceX", 3, 2, 3, 1, 7.95),
    Sketcher.Constraint("DistanceY", 1, 1, 1, 2, 2.775),
    Sketcher.Constraint("DistanceY", 0, 2, -1, 1, 21.453439),
])
groove11 = doc.addObject("PartDesign::Groove", "Groove010")
body.addObject(groove11)
groove11.Profile = sketch13
groove11.ReferenceAxis = (sketch13, ["Axis0"])
groove11.Angle = 360

# Sketch on XY plane
sketch14 = doc.addObject("Sketcher::SketchObject", "Sketch013")
body.addObject(sketch14)
sketch14.AttachmentSupport = (doc.XY_Plane, [""])
sketch14.MapMode = "FlatFace"
sketch14.AttachmentOffset = App.Placement(V(0, 0, -30), App.Rotation())
sketch14.addGeometry(Part.Circle(V(27.9, 3.8, 0), V(0, 0, 1), 1.5), False)
sketch14.addConstraint([
    Sketcher.Constraint("Diameter", 0, 3.0),
    Sketcher.Constraint("DistanceX", -1, 1, 0, 3, 27.944979),
    Sketcher.Constraint("DistanceY", -1, 1, 0, 3, 3.833613),
])
pocket1 = doc.addObject("PartDesign::Pocket", "Pocket")
body.addObject(pocket1)
pocket1.Profile = sketch14
pocket1.Length = 5
pocket1.Reversed = True

doc.recompute()
